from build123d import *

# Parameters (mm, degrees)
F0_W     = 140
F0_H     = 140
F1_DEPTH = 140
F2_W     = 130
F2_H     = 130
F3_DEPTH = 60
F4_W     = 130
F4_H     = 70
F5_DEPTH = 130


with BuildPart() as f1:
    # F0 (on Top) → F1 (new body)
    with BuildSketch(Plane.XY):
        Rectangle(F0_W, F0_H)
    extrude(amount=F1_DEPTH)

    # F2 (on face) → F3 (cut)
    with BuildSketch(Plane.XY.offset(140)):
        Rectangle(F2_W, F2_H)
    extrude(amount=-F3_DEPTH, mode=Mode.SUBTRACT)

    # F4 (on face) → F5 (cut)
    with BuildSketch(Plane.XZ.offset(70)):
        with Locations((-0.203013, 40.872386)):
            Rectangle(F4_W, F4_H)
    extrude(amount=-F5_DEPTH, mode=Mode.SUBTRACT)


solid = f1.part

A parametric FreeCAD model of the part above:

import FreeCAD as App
import Part
import Sketcher
from FreeCAD import Vector

doc = App.newDocument("Part")
body = doc.addObject("PartDesign::Body", "Body")

sketch1 = body.newObject("Sketcher::SketchObject", "Sketch")
sketch1.AttachmentSupport = (doc.getObject("XY_Plane"), [""])
sketch1.MapMode = "FlatFace"
sketch1.addGeometry(Part.LineSegment(Vector(-70, 70, 0), Vector(-70, -70, 0)), False)
sketch1.addGeometry(Part.LineSegment(Vector(-70, -70, 0), Vector(70, -70, 0)), False)
sketch1.addGeometry(Part.LineSegment(Vector(70, -70, 0), Vector(70, 70, 0)), False)
sketch1.addGeometry(Part.LineSegment(Vector(70, 70, 0), Vector(-70, 70, 0)), False)
sketch1.addConstraint(Sketcher.Constraint("Coincident", 0, 2, 1, 1))
sketch1.addConstraint(Sketcher.Constraint("Coincident", 1, 2, 2, 1))
sketch1.addConstraint(Sketcher.Constraint("Coincident", 2, 2, 3, 1))
sketch1.addConstraint(Sketcher.Constraint("Coincident", 3, 2, 0, 1))
sketch1.addConstraint(Sketcher.Constraint("Vertical", 0))
sketch1.addConstraint(Sketcher.Constraint("Horizontal", 1))
sketch1.addConstraint(Sketcher.Constraint("Vertical", 2))
sketch1.addConstraint(Sketcher.Constraint("Horizontal", 3))
sketch1.addConstraint(Sketcher.Constraint("Symmetric", 0, 2, 2, 2, -1, 1))
sketch1.addConstraint(Sketcher.Constraint("Equal", 3, 0))
sketch1.addConstraint(Sketcher.Constraint("DistanceX", 1, 1, 1, 2, 140.0))
pad1 = body.newObject("PartDesign::Pad", "Pad")
pad1.Profile = sketch1
pad1.Length = 140

sketch2 = body.newObject("Sketcher::SketchObject", "Sketch001")
sketch2.AttachmentSupport = (doc.getObject("XY_Plane"), [""])
sketch2.MapMode = "FlatFace"
sketch2.AttachmentOffset = App.Placement(Vector(0, 0, 140), App.Rotation())
sketch2.addGeometry(Part.LineSegment(Vector(-65, 65, 0), Vector(-65, -65, 0)), False)
sketch2.addGeometry(Part.LineSegment(Vector(-65, -65, 0), Vector(65, -65, 0)), False)
sketch2.addGeometry(Part.LineSegment(Vector(65, -65, 0), Vector(65, 65, 0)), False)
sketch2.addGeometry(Part.LineSegment(Vector(65, 65, 0), Vector(-65, 65, 0)), False)
sketch2.addConstraint(Sketcher.Constraint("Coincident", 0, 2, 1, 1))
sketch2.addConstraint(Sketcher.Constraint("Coincident", 1, 2, 2, 1))
sketch2.addConstraint(Sketcher.Constraint("Coincident", 2, 2, 3, 1))
sketch2.addConstraint(Sketcher.Constraint("Coincident", 3, 2, 0, 1))
sketch2.addConstraint(Sketcher.Constraint("Vertical", 0))
sketch2.addConstraint(Sketcher.Constraint("Horizontal", 1))
sketch2.addConstraint(Sketcher.Constraint("Vertical", 2))
sketch2.addConstraint(Sketcher.Constraint("Horizontal", 3))
sketch2.addConstraint(Sketcher.Constraint("Symmetric", 0, 2, 2, 2, -1, 1))
sketch2.addConstraint(Sketcher.Constraint("Equal", 3, 0))
sketch2.addConstraint(Sketcher.Constraint("DistanceX", 1, 1, 1, 2, 130.0))
pocket1 = body.newObject("PartDesign::Pocket", "Pocket")
pocket1.Profile = sketch2
pocket1.Length = 60

sketch3 = body.newObject("Sketcher::SketchObject", "Sketch002")
sketch3.AttachmentSupport = (doc.getObject("XZ_Plane"), [""])
sketch3.MapMode = "FlatFace"
sketch3.AttachmentOffset = App.Placement(Vector(0, 0, 70), App.Rotation())
sketch3.addGeometry(Part.LineSegment(Vector(-65, 76, 0), Vector(-65, 6, 0)), False)
sketch3.addGeometry(Part.LineSegment(Vector(-65, 6, 0), Vector(65, 6, 0)), False)
sketch3.addGeometry(Part.LineSegment(Vector(65, 6, 0), Vector(65, 76, 0)), False)
sketch3.addGeometry(Part.LineSegment(Vector(65, 76, 0), Vector(-65, 76, 0)), False)
sketch3.addConstraint(Sketcher.Constraint("Coincident", 0, 2, 1, 1))
sketch3.addConstraint(Sketcher.Constraint("Coincident", 1, 2, 2, 1))
sketch3.addConstraint(Sketcher.Constraint("Coincident", 2, 2, 3, 1))
sketch3.addConstraint(Sketcher.Constraint("Coincident", 3, 2, 0, 1))
sketch3.addConstraint(Sketcher.Constraint("Vertical", 0))
sketch3.addConstraint(Sketcher.Constraint("Horizontal", 1))
sketch3.addConstraint(Sketcher.Constraint("Vertical", 2))
sketch3.addConstraint(Sketcher.Constraint("Horizontal", 3))
sketch3.addConstraint(Sketcher.Constraint("DistanceX", 1, 1, 1, 2, 130.0))
sketch3.addConstraint(Sketcher.Constraint("DistanceY", 0, 2, 0, 1, 70.0))
sketch3.addConstraint(Sketcher.Constraint("DistanceX", 0, 2, -1, 1, 65.203013))
sketch3.addConstraint(Sketcher.Constraint("DistanceY", -1, 1, 0, 2, 5.872386))
pocket2 = body.newObject("PartDesign::Pocket", "Pocket001")
pocket2.Profile = sketch3
pocket2.Length = 130

doc.recompute()
